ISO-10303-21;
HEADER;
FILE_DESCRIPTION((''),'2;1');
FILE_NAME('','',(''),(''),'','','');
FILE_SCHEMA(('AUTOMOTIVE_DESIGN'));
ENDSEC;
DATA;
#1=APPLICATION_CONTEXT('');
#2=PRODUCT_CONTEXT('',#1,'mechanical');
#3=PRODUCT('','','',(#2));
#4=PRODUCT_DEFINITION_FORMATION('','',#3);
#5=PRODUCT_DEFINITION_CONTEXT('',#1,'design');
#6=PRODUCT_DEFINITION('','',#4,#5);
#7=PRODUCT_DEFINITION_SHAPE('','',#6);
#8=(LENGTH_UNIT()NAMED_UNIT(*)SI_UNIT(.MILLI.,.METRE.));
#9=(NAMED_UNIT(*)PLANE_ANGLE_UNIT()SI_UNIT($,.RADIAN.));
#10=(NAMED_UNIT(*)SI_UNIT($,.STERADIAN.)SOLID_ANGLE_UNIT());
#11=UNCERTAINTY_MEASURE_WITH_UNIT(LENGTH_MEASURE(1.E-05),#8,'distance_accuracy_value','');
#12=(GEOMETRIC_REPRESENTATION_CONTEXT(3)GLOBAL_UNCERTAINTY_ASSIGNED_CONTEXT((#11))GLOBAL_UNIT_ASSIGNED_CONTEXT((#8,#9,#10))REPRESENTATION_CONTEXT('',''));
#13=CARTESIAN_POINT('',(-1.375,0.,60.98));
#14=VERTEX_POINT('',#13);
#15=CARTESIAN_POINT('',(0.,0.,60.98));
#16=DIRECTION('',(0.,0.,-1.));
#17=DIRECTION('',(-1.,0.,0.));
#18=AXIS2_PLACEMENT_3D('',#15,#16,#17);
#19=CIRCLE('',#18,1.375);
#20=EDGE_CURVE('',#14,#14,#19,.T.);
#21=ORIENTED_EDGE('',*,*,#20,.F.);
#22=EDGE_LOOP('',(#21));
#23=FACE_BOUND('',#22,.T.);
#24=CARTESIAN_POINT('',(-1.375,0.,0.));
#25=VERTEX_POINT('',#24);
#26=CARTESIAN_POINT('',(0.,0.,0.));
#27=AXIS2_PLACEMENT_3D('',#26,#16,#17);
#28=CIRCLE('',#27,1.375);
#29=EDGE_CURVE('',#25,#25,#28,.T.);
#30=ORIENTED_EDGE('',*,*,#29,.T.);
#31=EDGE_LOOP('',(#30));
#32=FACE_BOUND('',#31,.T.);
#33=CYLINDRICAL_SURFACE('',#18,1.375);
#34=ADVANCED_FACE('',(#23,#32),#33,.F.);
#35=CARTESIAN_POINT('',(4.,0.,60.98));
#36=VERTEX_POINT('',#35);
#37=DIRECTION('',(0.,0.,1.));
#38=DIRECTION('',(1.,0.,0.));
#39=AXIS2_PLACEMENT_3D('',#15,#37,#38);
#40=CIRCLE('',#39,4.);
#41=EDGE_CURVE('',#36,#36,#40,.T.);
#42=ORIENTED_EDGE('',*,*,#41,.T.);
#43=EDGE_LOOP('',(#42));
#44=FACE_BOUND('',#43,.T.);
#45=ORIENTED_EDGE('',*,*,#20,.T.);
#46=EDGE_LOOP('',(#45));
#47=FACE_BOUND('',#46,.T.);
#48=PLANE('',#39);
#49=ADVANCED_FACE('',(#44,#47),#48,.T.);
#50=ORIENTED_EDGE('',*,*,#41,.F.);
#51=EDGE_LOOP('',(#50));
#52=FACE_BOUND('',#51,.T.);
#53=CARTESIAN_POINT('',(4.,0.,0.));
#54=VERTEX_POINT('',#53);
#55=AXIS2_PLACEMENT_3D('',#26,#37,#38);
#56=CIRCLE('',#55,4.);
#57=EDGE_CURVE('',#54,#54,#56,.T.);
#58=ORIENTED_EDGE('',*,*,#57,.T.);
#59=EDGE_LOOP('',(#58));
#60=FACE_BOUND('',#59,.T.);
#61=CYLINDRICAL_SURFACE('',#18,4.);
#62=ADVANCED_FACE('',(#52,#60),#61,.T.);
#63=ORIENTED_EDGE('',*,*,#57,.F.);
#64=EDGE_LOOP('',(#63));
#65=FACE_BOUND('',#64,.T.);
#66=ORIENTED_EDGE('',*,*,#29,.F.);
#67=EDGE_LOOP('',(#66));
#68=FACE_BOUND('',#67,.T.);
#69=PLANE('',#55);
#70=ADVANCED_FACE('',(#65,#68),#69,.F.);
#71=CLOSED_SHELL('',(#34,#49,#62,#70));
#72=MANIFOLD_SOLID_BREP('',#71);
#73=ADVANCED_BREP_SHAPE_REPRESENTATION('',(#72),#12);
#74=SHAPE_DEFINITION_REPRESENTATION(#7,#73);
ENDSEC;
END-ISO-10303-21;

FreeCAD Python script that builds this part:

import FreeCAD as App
import Part
import Sketcher
from FreeCAD import Vector
Q = App.Units.Quantity

doc = App.newDocument("Part")
body = doc.addObject("PartDesign::Body", "Body")

sketch1 = body.newObject("Sketcher::SketchObject", "Sketch")
sketch1.AttachmentSupport = (doc.getObject("XY_Plane"), [""])
sketch1.MapMode = "FlatFace"
sketch1.addGeometry(Part.Circle(Vector(0, 0, 0), Vector(0, 0, 1), 4), False)
sketch1.addConstraint([
    Sketcher.Constraint("Coincident", 0, 3, -1, 1),
    Sketcher.Constraint("Diameter", 0, Q("8 mm")),
])
pad1 = body.newObject("PartDesign::Pad", "Pad")
pad1.Profile = sketch1
pad1.Length = 60.98

sketch2 = body.newObject("Sketcher::SketchObject", "Sketch001")
sketch2.AttachmentSupport = (doc.getObject("XY_Plane"), [""])
sketch2.MapMode = "FlatFace"
sketch2.addGeometry(Part.Circle(Vector(0, 0, 0), Vector(0, 0, 1), 1.4), False)
sketch2.addConstraint([
    Sketcher.Constraint("Coincident", 0, 3, -1, 1),
    Sketcher.Constraint("Diameter", 0, Q("2.75 mm")),
])
pocket1 = body.newObject("PartDesign::Pocket", "Pocket")
pocket1.Profile = sketch2
pocket1.Type = "ThroughAll"
pocket1.Reversed = True

doc.recompute()
